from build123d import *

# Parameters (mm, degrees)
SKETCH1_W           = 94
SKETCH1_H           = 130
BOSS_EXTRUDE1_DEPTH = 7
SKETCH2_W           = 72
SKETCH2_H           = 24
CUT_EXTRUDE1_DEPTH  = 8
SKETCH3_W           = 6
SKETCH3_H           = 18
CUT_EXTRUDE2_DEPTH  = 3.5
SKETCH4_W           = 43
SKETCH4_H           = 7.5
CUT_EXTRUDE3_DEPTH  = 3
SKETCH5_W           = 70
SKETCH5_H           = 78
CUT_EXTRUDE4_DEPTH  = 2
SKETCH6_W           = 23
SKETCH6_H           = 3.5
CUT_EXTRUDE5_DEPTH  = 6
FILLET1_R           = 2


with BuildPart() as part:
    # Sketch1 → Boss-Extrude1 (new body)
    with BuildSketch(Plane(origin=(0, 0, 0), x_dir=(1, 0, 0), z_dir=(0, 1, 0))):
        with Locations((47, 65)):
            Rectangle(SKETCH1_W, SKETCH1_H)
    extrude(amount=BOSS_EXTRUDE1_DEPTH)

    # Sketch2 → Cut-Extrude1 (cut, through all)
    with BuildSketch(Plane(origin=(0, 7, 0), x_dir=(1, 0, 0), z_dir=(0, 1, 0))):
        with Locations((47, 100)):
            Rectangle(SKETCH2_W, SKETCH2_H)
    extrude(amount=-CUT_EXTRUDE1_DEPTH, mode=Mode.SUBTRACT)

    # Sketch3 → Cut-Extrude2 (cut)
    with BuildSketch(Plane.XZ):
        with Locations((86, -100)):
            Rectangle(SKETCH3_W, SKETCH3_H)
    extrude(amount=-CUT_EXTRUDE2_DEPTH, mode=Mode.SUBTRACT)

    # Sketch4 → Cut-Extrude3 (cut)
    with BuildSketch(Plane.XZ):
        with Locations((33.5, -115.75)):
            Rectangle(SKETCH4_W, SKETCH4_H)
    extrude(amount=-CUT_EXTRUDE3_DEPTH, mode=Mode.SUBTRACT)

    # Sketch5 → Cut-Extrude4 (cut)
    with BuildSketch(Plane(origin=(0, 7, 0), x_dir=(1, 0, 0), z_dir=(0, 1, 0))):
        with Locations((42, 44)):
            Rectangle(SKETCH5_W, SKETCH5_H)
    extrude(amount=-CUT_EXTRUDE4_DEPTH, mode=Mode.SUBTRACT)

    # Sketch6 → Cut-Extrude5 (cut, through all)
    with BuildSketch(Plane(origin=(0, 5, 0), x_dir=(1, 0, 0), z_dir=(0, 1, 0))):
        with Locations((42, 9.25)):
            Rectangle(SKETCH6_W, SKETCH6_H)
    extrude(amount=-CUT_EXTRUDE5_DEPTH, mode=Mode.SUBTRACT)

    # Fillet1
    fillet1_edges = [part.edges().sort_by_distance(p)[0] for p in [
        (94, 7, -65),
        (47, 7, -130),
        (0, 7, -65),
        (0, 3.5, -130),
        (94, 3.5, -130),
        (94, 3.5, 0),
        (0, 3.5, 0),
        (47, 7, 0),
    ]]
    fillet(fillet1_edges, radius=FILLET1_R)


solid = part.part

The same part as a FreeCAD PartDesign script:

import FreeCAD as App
import Part
import Sketcher
from FreeCAD import Vector


def edges_at(feature, points):
    """Names of the edges that pass closest to the given points."""
    edges = feature.Shape.Edges
    near = lambda p: min(range(len(edges)), key=lambda i: edges[i].distToShape(Part.Vertex(*p))[0])
    return sorted({f"Edge{near(p) + 1}" for p in points})

doc = App.newDocument("Part")
body = doc.addObject("PartDesign::Body", "Body")

# Sketch on XZ plane
sketch1 = doc.addObject("Sketcher::SketchObject", "Sketch")
body.addObject(sketch1)
sketch1.AttachmentSupport = (doc.XZ_Plane, [""])
sketch1.MapMode = "FlatFace"
sketch1.addGeometry(Part.LineSegment(Vector(0, -130, 0), Vector(0, 0, 0)), False)
sketch1.addGeometry(Part.LineSegment(Vector(0, 0, 0), Vector(94, 0, 0)), False)
sketch1.addGeometry(Part.LineSegment(Vector(94, 0, 0), Vector(94, -130, 0)), False)
sketch1.addGeometry(Part.LineSegment(Vector(94, -130, 0), Vector(0, -130, 0)), False)
sketch1.addConstraint(Sketcher.Constraint("Coincident", 0, 2, 1, 1))
sketch1.addConstraint(Sketcher.Constraint("Coincident", 1, 2, 2, 1))
sketch1.addConstraint(Sketcher.Constraint("Coincident", 2, 2, 3, 1))
sketch1.addConstraint(Sketcher.Constraint("Coincident", 3, 2, 0, 1))
sketch1.addConstraint(Sketcher.Constraint("Vertical", 0))
sketch1.addConstraint(Sketcher.Constraint("Horizontal", 1))
sketch1.addConstraint(Sketcher.Constraint("Vertical", 2))
sketch1.addConstraint(Sketcher.Constraint("Horizontal", 3))
sketch1.addConstraint(Sketcher.Constraint("Coincident", 0, 2, -1, 1))
sketch1.addConstraint(Sketcher.Constraint("DistanceX", 1, 1, 1, 2, 94.0))
sketch1.addConstraint(Sketcher.Constraint("DistanceY", 0, 1, 0, 2, 130.0))
pad1 = doc.addObject("PartDesign::Pad", "Pad")
body.addObject(pad1)
pad1.Profile = sketch1
pad1.Length = 7
pad1.Reversed = True

# Sketch on XZ plane
sketch2 = doc.addObject("Sketcher::SketchObject", "Sketch001")
body.addObject(sketch2)
sketch2.AttachmentSupport = (doc.XZ_Plane, [""])
sketch2.MapMode = "FlatFace"
sketch2.AttachmentOffset = App.Placement(Vector(0, 0, -7), App.Rotation())
sketch2.addGeometry(Part.LineSegment(Vector(11, -112, 0), Vector(11, -88, 0)), False)
sketch2.addGeometry(Part.LineSegment(Vector(11, -88, 0), Vector(83, -88, 0)), False)
sketch2.addGeometry(Part.LineSegment(Vector(83, -88, 0), Vector(83, -112, 0)), False)
sketch2.addGeometry(Part.LineSegment(Vector(83, -112, 0), Vector(11, -112, 0)), False)
sketch2.addConstraint(Sketcher.Constraint("Coincident", 0, 2, 1, 1))
sketch2.addConstraint(Sketcher.Constraint("Coincident", 1, 2, 2, 1))
sketch2.addConstraint(Sketcher.Constraint("Coincident", 2, 2, 3, 1))
sketch2.addConstraint(Sketcher.Constraint("Coincident", 3, 2, 0, 1))
sketch2.addConstraint(Sketcher.Constraint("Vertical", 0))
sketch2.addConstraint(Sketcher.Constraint("Horizontal", 1))
sketch2.addConstraint(Sketcher.Constraint("Vertical", 2))
sketch2.addConstraint(Sketcher.Constraint("Horizontal", 3))
sketch2.addConstraint(Sketcher.Constraint("DistanceX", 1, 1, 1, 2, 72.0))
sketch2.addConstraint(Sketcher.Constraint("DistanceY", 0, 1, 0, 2, 24.0))
sketch2.addConstraint(Sketcher.Constraint("DistanceX", -1, 1, 0, 2, 11.0))
sketch2.addConstraint(Sketcher.Constraint("DistanceY", 0, 2, -1, 1, 88.0))
pocket1 = doc.addObject("PartDesign::Pocket", "Pocket")
body.addObject(pocket1)
pocket1.Profile = sketch2
pocket1.Type = "ThroughAll"
pocket1.Reversed = True

# Sketch on XZ plane
sketch3 = doc.addObject("Sketcher::SketchObject", "Sketch002")
body.addObject(sketch3)
sketch3.AttachmentSupport = (doc.XZ_Plane, [""])
sketch3.MapMode = "FlatFace"
sketch3.addGeometry(Part.LineSegment(Vector(83, -91, 0), Vector(83, -109, 0)), False)
sketch3.addGeometry(Part.LineSegment(Vector(83, -109, 0), Vector(89, -109, 0)), False)
sketch3.addGeometry(Part.LineSegment(Vector(89, -109, 0), Vector(89, -91, 0)), False)
sketch3.addGeometry(Part.LineSegment(Vector(89, -91, 0), Vector(83, -91, 0)), False)
sketch3.addConstraint(Sketcher.Constraint("Coincident", 0, 2, 1, 1))
sketch3.addConstraint(Sketcher.Constraint("Coincident", 1, 2, 2, 1))
sketch3.addConstraint(Sketcher.Constraint("Coincident", 2, 2, 3, 1))
sketch3.addConstraint(Sketcher.Constraint("Coincident", 3, 2, 0, 1))
sketch3.addConstraint(Sketcher.Constraint("Vertical", 0))
sketch3.addConstraint(Sketcher.Constraint("Horizontal", 1))
sketch3.addConstraint(Sketcher.Constraint("Vertical", 2))
sketch3.addConstraint(Sketcher.Constraint("Horizontal", 3))
sketch3.addConstraint(Sketcher.Constraint("DistanceX", 1, 1, 1, 2, 6.0))
sketch3.addConstraint(Sketcher.Constraint("DistanceY", 0, 2, 0, 1, 18.0))
sketch3.addConstraint(Sketcher.Constraint("DistanceX", -1, 1, 0, 2, 83.0))
sketch3.addConstraint(Sketcher.Constraint("DistanceY", 0, 2, -1, 1, 109.0))
pocket2 = doc.addObject("PartDesign::Pocket", "Pocket001")
body.addObject(pocket2)
pocket2.Profile = sketch3
pocket2.Length = 3.5

# Sketch on XZ plane
sketch4 = doc.addObject("Sketcher::SketchObject", "Sketch003")
body.addObject(sketch4)
sketch4.AttachmentSupport = (doc.XZ_Plane, [""])
sketch4.MapMode = "FlatFace"
sketch4.addGeometry(Part.LineSegment(Vector(12, -112, 0), Vector(12, -120, 0)), False)
sketch4.addGeometry(Part.LineSegment(Vector(12, -120, 0), Vector(55, -120, 0)), False)
sketch4.addGeometry(Part.LineSegment(Vector(55, -120, 0), Vector(55, -112, 0)), False)
sketch4.addGeometry(Part.LineSegment(Vector(55, -112, 0), Vector(12, -112, 0)), False)
sketch4.addConstraint(Sketcher.Constraint("Coincident", 0, 2, 1, 1))
sketch4.addConstraint(Sketcher.Constraint("Coincident", 1, 2, 2, 1))
sketch4.addConstraint(Sketcher.Constraint("Coincident", 2, 2, 3, 1))
sketch4.addConstraint(Sketcher.Constraint("Coincident", 3, 2, 0, 1))
sketch4.addConstraint(Sketcher.Constraint("Vertical", 0))
sketch4.addConstraint(Sketcher.Constraint("Horizontal", 1))
sketch4.addConstraint(Sketcher.Constraint("Vertical", 2))
sketch4.addConstraint(Sketcher.Constraint("Horizontal", 3))
sketch4.addConstraint(Sketcher.Constraint("DistanceX", 1, 1, 1, 2, 43.0))
sketch4.addConstraint(Sketcher.Constraint("DistanceY", 0, 2, 0, 1, 7.5))
sketch4.addConstraint(Sketcher.Constraint("DistanceX", -1, 1, 0, 2, 12.0))
sketch4.addConstraint(Sketcher.Constraint("DistanceY", 2, 2, -1, 1, 112.0))
pocket3 = doc.addObject("PartDesign::Pocket", "Pocket002")
body.addObject(pocket3)
pocket3.Profile = sketch4
pocket3.Length = 3

# Sketch on XZ plane
sketch5 = doc.addObject("Sketcher::SketchObject", "Sketch004")
body.addObject(sketch5)
sketch5.AttachmentSupport = (doc.XZ_Plane, [""])
sketch5.MapMode = "FlatFace"
sketch5.AttachmentOffset = App.Placement(Vector(0, 0, -7), App.Rotation())
sketch5.addGeometry(Part.LineSegment(Vector(7, -83, 0), Vector(7, -5, 0)), False)
sketch5.addGeometry(Part.LineSegment(Vector(7, -5, 0), Vector(77, -5, 0)), False)
sketch5.addGeometry(Part.LineSegment(Vector(77, -5, 0), Vector(77, -83, 0)), False)
sketch5.addGeometry(Part.LineSegment(Vector(77, -83, 0), Vector(7, -83, 0)), False)
sketch5.addConstraint(Sketcher.Constraint("Coincident", 0, 2, 1, 1))
sketch5.addConstraint(Sketcher.Constraint("Coincident", 1, 2, 2, 1))
sketch5.addConstraint(Sketcher.Constraint("Coincident", 2, 2, 3, 1))
sketch5.addConstraint(Sketcher.Constraint("Coincident", 3, 2, 0, 1))
sketch5.addConstraint(Sketcher.Constraint("Vertical", 0))
sketch5.addConstraint(Sketcher.Constraint("Horizontal", 1))
sketch5.addConstraint(Sketcher.Constraint("Vertical", 2))
sketch5.addConstraint(Sketcher.Constraint("Horizontal", 3))
sketch5.addConstraint(Sketcher.Constraint("DistanceX", 1, 1, 1, 2, 70.0))
sketch5.addConstraint(Sketcher.Constraint("DistanceY", 0, 1, 0, 2, 78.0))
sketch5.addConstraint(Sketcher.Constraint("DistanceX", -1, 1, 0, 2, 7.0))
sketch5.addConstraint(Sketcher.Constraint("DistanceY", 0, 2, -1, 1, 5.0))
pocket4 = doc.addObject("PartDesign::Pocket", "Pocket003")
body.addObject(pocket4)
pocket4.Profile = sketch5
pocket4.Length = 2
pocket4.Reversed = True

# Sketch on XZ plane
sketch6 = doc.addObject("Sketcher::SketchObject", "Sketch005")
body.addObject(sketch6)
sketch6.AttachmentSupport = (doc.XZ_Plane, [""])
sketch6.MapMode = "FlatFace"
sketch6.AttachmentOffset = App.Placement(Vector(0, 0, -5), App.Rotation())
sketch6.addGeometry(Part.LineSegment(Vector(30.5, -11, 0), Vector(30.5, -7.5, 0)), False)
sketch6.addGeometry(Part.LineSegment(Vector(30.5, -7.5, 0), Vector(53.5, -7.5, 0)), False)
sketch6.addGeometry(Part.LineSegment(Vector(53.5, -7.5, 0), Vector(53.5, -11, 0)), False)
sketch6.addGeometry(Part.LineSegment(Vector(53.5, -11, 0), Vector(30.5, -11, 0)), False)
sketch6.addConstraint(Sketcher.Constraint("Coincident", 0, 2, 1, 1))
sketch6.addConstraint(Sketcher.Constraint("Coincident", 1, 2, 2, 1))
sketch6.addConstraint(Sketcher.Constraint("Coincident", 2, 2, 3, 1))
sketch6.addConstraint(Sketcher.Constraint("Coincident", 3, 2, 0, 1))
sketch6.addConstraint(Sketcher.Constraint("Vertical", 0))
sketch6.addConstraint(Sketcher.Constraint("Horizontal", 1))
sketch6.addConstraint(Sketcher.Constraint("Vertical", 2))
sketch6.addConstraint(Sketcher.Constraint("Horizontal", 3))
sketch6.addConstraint(Sketcher.Constraint("DistanceX", 1, 1, 1, 2, 23.0))
sketch6.addConstraint(Sketcher.Constraint("DistanceY", 0, 1, 0, 2, 3.5))
sketch6.addConstraint(Sketcher.Constraint("DistanceY", 2, 2, -1, 1, 11.0))
sketch6.addConstraint(Sketcher.Constraint("DistanceX", -1, 1, 0, 2, 30.5))
pocket5 = doc.addObject("PartDesign::Pocket", "Pocket004")
body.addObject(pocket5)
pocket5.Profile = sketch6
pocket5.Type = "ThroughAll"
pocket5.Reversed = True
doc.recompute()

fillet = doc.addObject("PartDesign::Fillet", "Fillet")
body.addObject(fillet)
fillet.Base = (pocket5, edges_at(pocket5, [
    (94, 7, -65),
    (47, 7, -130),
    (0, 7, -65),
    (0, 3.5, -130),
    (94, 3.5, -130),
    (94, 3.5, 0),
    (0, 3.5, 0),
    (47, 7, 0),
]))
fillet.Radius = 2

doc.recompute()
